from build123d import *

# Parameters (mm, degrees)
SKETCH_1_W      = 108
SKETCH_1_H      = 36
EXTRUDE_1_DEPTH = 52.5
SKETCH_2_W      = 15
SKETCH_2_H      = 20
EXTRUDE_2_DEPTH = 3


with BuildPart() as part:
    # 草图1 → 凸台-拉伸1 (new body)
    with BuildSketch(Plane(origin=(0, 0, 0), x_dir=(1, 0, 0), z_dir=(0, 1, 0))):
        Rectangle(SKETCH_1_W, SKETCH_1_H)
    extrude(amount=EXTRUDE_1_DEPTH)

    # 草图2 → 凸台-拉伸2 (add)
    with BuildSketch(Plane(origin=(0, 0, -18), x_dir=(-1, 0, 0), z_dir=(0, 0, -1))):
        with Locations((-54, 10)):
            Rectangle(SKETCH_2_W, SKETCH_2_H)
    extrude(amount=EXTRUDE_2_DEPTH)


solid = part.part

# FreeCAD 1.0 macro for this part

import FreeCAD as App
import Part
import Sketcher

V = App.Vector


def add_polygon(sketch, points):
    """Adds a closed chain of lines whose ends are joined by coincident constraints."""
    first, n = sketch.GeometryCount, len(points)
    for a, b in zip(points, points[1:] + points[:1]):
        sketch.addGeometry(Part.LineSegment(App.Vector(*a, 0), App.Vector(*b, 0)), False)
    for i in range(n):
        sketch.addConstraint(Sketcher.Constraint("Coincident", first + i, 2, first + (i + 1) % n, 1))

doc = App.newDocument("Part")
params = doc.addObject("Spreadsheet::Sheet", "Params")
for row, (alias, value) in enumerate([
    ("sketch1_width", "108 mm"),
    ("sketch1_height", "36 mm"),
    ("pad1_length", "52.5 mm"),
    ("sketch2_width", "15 mm"),
    ("sketch2_height", "20 mm"),
    ("pad2_length", "3 mm"),
], start=1):
    params.set(f"A{row}", alias)
    params.set(f"B{row}", "=" + value)
    params.setAlias(f"B{row}", alias)

body = doc.addObject("PartDesign::Body", "Body")

# Sketch on XZ plane
sketch1 = body.newObject("Sketcher::SketchObject", "Sketch")
sketch1.AttachmentSupport = (doc.getObject("XZ_Plane"), [""])
sketch1.MapMode = "FlatFace"
add_polygon(sketch1, [(-54, -18), (-54, 18), (54, 18), (54, -18)])  # lines 0-3
sketch1.addConstraint([
    Sketcher.Constraint("Vertical", 0),
    Sketcher.Constraint("Horizontal", 1),
    Sketcher.Constraint("Vertical", 2),
    Sketcher.Constraint("Horizontal", 3),
    Sketcher.Constraint("Symmetric", 0, 2, 2, 2, -1, 1),
    Sketcher.Constraint("DistanceX", 1, 1, 1, 2, 108.0),
    Sketcher.Constraint("DistanceY", 0, 1, 0, 2, 36.0),
])
sketch1.setExpression("Constraints[9]", "Params.sketch1_width")
sketch1.setExpression("Constraints[10]", "Params.sketch1_height")
pad1 = body.newObject("PartDesign::Pad", "Pad")
pad1.Profile = sketch1
pad1.setExpression("Length", "Params.pad1_length")
pad1.Reversed = True

# Sketch on XY plane
sketch2 = body.newObject("Sketcher::SketchObject", "Sketch001")
sketch2.AttachmentSupport = (doc.getObject("XY_Plane"), [""])
sketch2.MapMode = "FlatFace"
sketch2.AttachmentOffset = App.Placement(V(0, 0, -18), App.Rotation())
add_polygon(sketch2, [(61.5, 20), (61.5, 0), (46.5, 0), (46.5, 20)])  # lines 0-3
sketch2.addConstraint([
    Sketcher.Constraint("Vertical", 0),
    Sketcher.Constraint("Horizontal", 1),
    Sketcher.Constraint("Vertical", 2),
    Sketcher.Constraint("Horizontal", 3),
    Sketcher.Constraint("PointOnObject", 0, 2, -1),
    Sketcher.Constraint("DistanceX", 1, 2, 1, 1, 15.0),
    Sketcher.Constraint("DistanceY", 0, 2, 0, 1, 20.0),
    Sketcher.Constraint("DistanceX", -1, 1, 0, 2, 61.5),
])
sketch2.setExpression("Constraints[9]", "Params.sketch2_width")
sketch2.setExpression("Constraints[10]", "Params.sketch2_height")
pad2 = body.newObject("PartDesign::Pad", "Pad001")
pad2.Profile = sketch2
pad2.setExpression("Length", "Params.pad2_length")
pad2.Reversed = True

doc.recompute()
